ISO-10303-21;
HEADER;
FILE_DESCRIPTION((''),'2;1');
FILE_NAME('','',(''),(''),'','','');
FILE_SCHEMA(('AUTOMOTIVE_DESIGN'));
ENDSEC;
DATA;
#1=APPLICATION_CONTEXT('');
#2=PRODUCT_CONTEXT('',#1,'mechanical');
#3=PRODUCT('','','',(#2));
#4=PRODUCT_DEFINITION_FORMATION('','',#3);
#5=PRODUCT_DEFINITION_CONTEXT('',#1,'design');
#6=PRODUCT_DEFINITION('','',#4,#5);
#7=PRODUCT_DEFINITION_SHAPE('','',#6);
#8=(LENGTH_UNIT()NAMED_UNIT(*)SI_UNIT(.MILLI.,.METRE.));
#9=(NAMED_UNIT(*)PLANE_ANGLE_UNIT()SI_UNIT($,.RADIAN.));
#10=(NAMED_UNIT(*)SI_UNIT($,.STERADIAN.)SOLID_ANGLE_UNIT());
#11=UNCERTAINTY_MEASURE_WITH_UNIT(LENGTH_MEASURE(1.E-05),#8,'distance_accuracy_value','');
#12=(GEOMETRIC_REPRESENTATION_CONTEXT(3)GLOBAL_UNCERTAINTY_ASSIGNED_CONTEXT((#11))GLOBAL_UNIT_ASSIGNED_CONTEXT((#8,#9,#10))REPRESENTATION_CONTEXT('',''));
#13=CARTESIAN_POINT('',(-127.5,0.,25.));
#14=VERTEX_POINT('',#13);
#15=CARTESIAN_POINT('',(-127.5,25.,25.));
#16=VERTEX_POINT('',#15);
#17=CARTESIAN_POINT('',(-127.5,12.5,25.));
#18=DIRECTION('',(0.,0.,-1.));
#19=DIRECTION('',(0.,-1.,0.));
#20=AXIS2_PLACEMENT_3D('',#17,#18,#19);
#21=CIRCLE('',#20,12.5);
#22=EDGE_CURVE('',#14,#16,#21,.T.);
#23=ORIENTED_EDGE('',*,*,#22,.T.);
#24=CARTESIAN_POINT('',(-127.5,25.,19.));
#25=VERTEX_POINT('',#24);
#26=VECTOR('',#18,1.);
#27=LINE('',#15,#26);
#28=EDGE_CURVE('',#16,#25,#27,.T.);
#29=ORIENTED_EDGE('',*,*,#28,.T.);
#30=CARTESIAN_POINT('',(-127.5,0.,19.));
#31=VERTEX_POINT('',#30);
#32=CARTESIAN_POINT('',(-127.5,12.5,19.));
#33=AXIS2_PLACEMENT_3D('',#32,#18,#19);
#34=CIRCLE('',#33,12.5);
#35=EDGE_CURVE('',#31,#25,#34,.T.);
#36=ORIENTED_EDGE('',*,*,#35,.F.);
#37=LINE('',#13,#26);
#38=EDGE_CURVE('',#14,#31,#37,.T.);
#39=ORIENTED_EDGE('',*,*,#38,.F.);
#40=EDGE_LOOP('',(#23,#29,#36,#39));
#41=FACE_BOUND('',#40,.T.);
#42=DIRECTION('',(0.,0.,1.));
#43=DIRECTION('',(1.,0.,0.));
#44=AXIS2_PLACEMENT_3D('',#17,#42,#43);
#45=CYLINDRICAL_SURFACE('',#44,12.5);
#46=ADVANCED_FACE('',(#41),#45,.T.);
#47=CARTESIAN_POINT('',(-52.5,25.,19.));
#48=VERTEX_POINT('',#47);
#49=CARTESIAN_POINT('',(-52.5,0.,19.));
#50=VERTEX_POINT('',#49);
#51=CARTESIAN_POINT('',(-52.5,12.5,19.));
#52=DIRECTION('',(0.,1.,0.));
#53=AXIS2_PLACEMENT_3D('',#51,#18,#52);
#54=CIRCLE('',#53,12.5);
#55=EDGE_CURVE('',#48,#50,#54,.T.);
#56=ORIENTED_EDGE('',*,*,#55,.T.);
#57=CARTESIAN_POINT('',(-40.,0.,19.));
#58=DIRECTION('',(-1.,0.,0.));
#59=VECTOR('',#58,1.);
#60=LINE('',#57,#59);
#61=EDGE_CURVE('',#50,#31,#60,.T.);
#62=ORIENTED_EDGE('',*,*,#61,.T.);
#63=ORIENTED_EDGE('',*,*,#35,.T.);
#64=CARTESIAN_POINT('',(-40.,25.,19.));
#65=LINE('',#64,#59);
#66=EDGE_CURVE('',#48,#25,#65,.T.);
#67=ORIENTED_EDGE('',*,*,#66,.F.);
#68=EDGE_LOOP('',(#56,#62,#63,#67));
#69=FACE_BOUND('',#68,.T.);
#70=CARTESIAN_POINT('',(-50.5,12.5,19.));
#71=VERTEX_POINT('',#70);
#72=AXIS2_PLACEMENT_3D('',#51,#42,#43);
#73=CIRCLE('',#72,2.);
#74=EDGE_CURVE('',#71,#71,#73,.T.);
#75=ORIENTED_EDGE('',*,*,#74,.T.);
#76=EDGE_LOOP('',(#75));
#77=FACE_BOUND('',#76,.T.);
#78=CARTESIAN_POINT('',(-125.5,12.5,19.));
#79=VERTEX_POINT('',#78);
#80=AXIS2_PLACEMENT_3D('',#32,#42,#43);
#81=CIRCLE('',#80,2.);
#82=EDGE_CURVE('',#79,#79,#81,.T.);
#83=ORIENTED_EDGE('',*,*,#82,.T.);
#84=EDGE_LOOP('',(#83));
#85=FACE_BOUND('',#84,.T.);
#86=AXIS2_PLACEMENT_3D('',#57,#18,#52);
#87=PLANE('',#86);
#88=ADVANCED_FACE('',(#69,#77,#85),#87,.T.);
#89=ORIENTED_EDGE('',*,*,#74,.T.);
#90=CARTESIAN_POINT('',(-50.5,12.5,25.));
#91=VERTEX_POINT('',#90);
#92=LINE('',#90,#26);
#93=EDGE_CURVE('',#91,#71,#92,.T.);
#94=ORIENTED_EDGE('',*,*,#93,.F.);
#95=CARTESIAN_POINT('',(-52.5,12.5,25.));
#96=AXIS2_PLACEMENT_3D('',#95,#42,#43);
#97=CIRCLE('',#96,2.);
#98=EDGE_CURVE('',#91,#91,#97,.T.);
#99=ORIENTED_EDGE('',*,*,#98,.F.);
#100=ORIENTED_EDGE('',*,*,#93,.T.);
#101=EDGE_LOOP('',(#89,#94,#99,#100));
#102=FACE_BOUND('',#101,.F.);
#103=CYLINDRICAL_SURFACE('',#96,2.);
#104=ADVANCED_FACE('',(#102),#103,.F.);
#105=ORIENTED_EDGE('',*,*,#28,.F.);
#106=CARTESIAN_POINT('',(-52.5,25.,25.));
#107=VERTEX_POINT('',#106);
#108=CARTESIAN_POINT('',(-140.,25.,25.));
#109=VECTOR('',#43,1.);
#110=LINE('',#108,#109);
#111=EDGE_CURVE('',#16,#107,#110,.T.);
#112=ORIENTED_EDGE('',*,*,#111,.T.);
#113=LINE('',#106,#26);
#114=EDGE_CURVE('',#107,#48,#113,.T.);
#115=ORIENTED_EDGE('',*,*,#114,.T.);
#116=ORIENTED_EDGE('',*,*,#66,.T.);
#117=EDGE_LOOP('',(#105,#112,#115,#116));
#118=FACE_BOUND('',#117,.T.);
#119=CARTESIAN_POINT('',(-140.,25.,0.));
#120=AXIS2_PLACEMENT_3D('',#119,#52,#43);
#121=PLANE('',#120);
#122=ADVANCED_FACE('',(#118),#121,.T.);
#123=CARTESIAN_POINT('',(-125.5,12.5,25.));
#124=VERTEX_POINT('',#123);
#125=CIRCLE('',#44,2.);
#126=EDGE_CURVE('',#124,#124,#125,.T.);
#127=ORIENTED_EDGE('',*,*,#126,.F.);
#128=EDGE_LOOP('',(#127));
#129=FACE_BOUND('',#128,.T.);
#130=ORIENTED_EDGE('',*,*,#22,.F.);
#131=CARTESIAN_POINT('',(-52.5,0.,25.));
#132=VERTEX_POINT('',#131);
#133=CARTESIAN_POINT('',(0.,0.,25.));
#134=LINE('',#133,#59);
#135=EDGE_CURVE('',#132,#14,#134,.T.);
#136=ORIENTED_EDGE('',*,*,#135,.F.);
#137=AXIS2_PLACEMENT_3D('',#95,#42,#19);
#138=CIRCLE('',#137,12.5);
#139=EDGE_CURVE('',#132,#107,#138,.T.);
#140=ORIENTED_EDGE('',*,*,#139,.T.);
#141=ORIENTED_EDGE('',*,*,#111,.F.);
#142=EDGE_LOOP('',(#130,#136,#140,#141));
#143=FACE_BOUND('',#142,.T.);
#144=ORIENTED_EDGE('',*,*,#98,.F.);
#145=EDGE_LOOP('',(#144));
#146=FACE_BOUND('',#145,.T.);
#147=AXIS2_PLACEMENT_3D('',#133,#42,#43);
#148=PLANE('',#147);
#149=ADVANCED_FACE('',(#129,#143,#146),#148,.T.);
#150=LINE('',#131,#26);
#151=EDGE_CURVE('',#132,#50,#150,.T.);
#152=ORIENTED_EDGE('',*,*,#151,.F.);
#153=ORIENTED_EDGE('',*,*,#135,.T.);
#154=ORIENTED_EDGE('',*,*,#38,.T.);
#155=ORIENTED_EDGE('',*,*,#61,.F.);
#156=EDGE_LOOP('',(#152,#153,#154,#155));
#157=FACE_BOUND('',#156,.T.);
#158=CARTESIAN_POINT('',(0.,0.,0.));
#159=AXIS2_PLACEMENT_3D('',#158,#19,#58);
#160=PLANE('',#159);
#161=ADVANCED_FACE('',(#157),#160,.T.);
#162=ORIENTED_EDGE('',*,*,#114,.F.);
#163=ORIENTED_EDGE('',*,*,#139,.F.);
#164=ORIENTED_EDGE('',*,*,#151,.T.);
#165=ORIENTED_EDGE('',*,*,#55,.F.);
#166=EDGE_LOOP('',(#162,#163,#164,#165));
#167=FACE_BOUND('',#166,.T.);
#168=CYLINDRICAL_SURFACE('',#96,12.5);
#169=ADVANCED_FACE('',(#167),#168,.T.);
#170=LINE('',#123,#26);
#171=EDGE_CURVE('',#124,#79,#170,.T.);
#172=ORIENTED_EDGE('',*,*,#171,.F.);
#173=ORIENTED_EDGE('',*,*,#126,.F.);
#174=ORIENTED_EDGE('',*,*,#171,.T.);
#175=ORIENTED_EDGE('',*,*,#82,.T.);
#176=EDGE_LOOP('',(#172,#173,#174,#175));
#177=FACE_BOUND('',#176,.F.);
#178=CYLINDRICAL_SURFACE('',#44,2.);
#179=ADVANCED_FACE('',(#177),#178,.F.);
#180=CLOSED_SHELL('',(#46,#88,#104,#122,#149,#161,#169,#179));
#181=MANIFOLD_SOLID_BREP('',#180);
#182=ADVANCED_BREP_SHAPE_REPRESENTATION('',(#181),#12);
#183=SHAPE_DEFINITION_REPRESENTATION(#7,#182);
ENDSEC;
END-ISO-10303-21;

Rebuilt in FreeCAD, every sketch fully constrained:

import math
import FreeCAD as App
import Part
import Sketcher

V = App.Vector
Q = App.Units.Quantity


def add_polygon(sketch, points):
    """Adds a closed chain of lines whose ends are joined by coincident constraints."""
    first, n = sketch.GeometryCount, len(points)
    for a, b in zip(points, points[1:] + points[:1]):
        sketch.addGeometry(Part.LineSegment(App.Vector(*a, 0), App.Vector(*b, 0)), False)
    for i in range(n):
        sketch.addConstraint(Sketcher.Constraint("Coincident", first + i, 2, first + (i + 1) % n, 1))

doc = App.newDocument("Part")
params = doc.addObject("Spreadsheet::Sheet", "Params")
for row, (alias, value) in enumerate([
    ("sketch1_width", "140 mm"),
    ("sketch1_height", "25 mm"),
    ("pad1_length", "25 mm"),
    ("sketch2_width", "40 mm"),
    ("sketch2_height", "25 mm"),
    ("pocket1_length", "100 mm"),
    ("sketch3_height", "19 mm"),
    ("sketch3_width", "25 mm"),
    ("pocket2_length", "100 mm"),
    ("sketch4_diameter", "4 mm"),
    ("sketch4_radius", "12.5 mm"),
    ("pocket3_length", "100 mm"),
], start=1):
    params.set(f"A{row}", alias)
    params.set(f"B{row}", "=" + value)
    params.setAlias(f"B{row}", alias)

body = doc.addObject("PartDesign::Body", "Body")

# Sketch on XY plane
sketch1 = doc.addObject("Sketcher::SketchObject", "Sketch")
body.addObject(sketch1)
sketch1.AttachmentSupport = (doc.XY_Plane, [""])
sketch1.MapMode = "FlatFace"
add_polygon(sketch1, [(-140, 0), (0, 0), (0, 25), (-140, 25)])  # lines 0-3
sketch1.addConstraint(Sketcher.Constraint("Horizontal", 0))
sketch1.addConstraint(Sketcher.Constraint("Vertical", 1))
sketch1.addConstraint(Sketcher.Constraint("Horizontal", 2))
sketch1.addConstraint(Sketcher.Constraint("Vertical", 3))
sketch1.addConstraint(Sketcher.Constraint("Coincident", 0, 2, -1, 1))
sketch1.addConstraint(Sketcher.Constraint("DistanceX", 0, 1, 0, 2, Q("140 mm")))
sketch1.addConstraint(Sketcher.Constraint("DistanceY", 1, 1, 1, 2, Q("25 mm")))
sketch1.setExpression("Constraints[9]", "Params.sketch1_width")
sketch1.setExpression("Constraints[10]", "Params.sketch1_height")
pad1 = doc.addObject("PartDesign::Pad", "Pad")
body.addObject(pad1)
pad1.Profile = sketch1
pad1.setExpression("Length", "Params.pad1_length")

# Sketch on XY plane
sketch2 = doc.addObject("Sketcher::SketchObject", "Sketch001")
body.addObject(sketch2)
sketch2.AttachmentSupport = (doc.XY_Plane, [""])
sketch2.MapMode = "FlatFace"
sketch2.AttachmentOffset = App.Placement(V(0, 0, 25), App.Rotation())
add_polygon(sketch2, [(0, 0), (0, 25), (-40, 25), (-40, 0)])  # lines 0-3
sketch2.addConstraint(Sketcher.Constraint("Vertical", 0))
sketch2.addConstraint(Sketcher.Constraint("Horizontal", 1))
sketch2.addConstraint(Sketcher.Constraint("Vertical", 2))
sketch2.addConstraint(Sketcher.Constraint("Horizontal", 3))
sketch2.addConstraint(Sketcher.Constraint("Coincident", 3, 2, -1, 1))
sketch2.addConstraint(Sketcher.Constraint("DistanceX", 1, 2, 1, 1, Q("40 mm")))
sketch2.addConstraint(Sketcher.Constraint("DistanceY", 0, 1, 0, 2, Q("25 mm")))
sketch2.setExpression("Constraints[9]", "Params.sketch2_width")
sketch2.setExpression("Constraints[10]", "Params.sketch2_height")
pocket1 = doc.addObject("PartDesign::Pocket", "Pocket")
body.addObject(pocket1)
pocket1.Profile = sketch2
pocket1.setExpression("Length", "Params.pocket1_length")

# Sketch on YZ plane
sketch3 = doc.addObject("Sketcher::SketchObject", "Sketch002")
body.addObject(sketch3)
sketch3.AttachmentSupport = (doc.YZ_Plane, [""])
sketch3.MapMode = "FlatFace"
sketch3.AttachmentOffset = App.Placement(V(0, 0, -40), App.Rotation())
add_polygon(sketch3, [(0, 0), (25, 0), (25, 19), (0, 19)])  # lines 0-3
sketch3.addConstraint(Sketcher.Constraint("Horizontal", 0))
sketch3.addConstraint(Sketcher.Constraint("Vertical", 1))
sketch3.addConstraint(Sketcher.Constraint("Horizontal", 2))
sketch3.addConstraint(Sketcher.Constraint("Vertical", 3))
sketch3.addConstraint(Sketcher.Constraint("Coincident", 3, 2, -1, 1))
sketch3.addConstraint(Sketcher.Constraint("DistanceY", 1, 1, 1, 2, Q("19 mm")))
sketch3.addConstraint(Sketcher.Constraint("DistanceX", 0, 1, 0, 2, Q("25 mm")))
sketch3.setExpression("Constraints[9]", "Params.sketch3_height")
sketch3.setExpression("Constraints[10]", "Params.sketch3_width")
pocket2 = doc.addObject("PartDesign::Pocket", "Pocket001")
body.addObject(pocket2)
pocket2.Profile = sketch3
pocket2.setExpression("Length", "Params.pocket2_length")

# Sketch on XY plane
sketch4 = doc.addObject("Sketcher::SketchObject", "Sketch003")
body.addObject(sketch4)
sketch4.AttachmentSupport = (doc.XY_Plane, [""])
sketch4.MapMode = "FlatFace"
sketch4.AttachmentOffset = App.Placement(V(0, 0, 25), App.Rotation())
sketch4.addGeometry(Part.LineSegment(V(-40, 0, 0), V(-40, 12.5, 0)), False)
sketch4.addGeometry(Part.ArcOfCircle(Part.Circle(V(-52.5, 12.5, 0), V(0, 0, 1), 12.5), math.radians(-90), math.radians(0)), False)
sketch4.addGeometry(Part.LineSegment(V(-52.5, 0, 0), V(-40, 0, 0)), False)
sketch4.addGeometry(Part.ArcOfCircle(Part.Circle(V(-52.5, 12.5, 0), V(0, 0, 1), 12.5), math.radians(0), math.radians(90)), False)
sketch4.addGeometry(Part.LineSegment(V(-40, 12.5, 0), V(-40, 25, 0)), False)
sketch4.addGeometry(Part.LineSegment(V(-40, 25, 0), V(-52.5, 25, 0)), False)
sketch4.addGeometry(Part.ArcOfCircle(Part.Circle(V(-127.5, 12.5, 0), V(0, 0, 1), 12.5), math.radians(90), math.radians(180)), False)
sketch4.addGeometry(Part.LineSegment(V(-127.5, 25, 0), V(-140, 25, 0)), False)
sketch4.addGeometry(Part.LineSegment(V(-140, 25, 0), V(-140, 12.5, 0)), False)
sketch4.addGeometry(Part.LineSegment(V(-140, 0, 0), V(-127.5, 0, 0)), False)
sketch4.addGeometry(Part.ArcOfCircle(Part.Circle(V(-127.5, 12.5, 0), V(0, 0, 1), 12.5), math.radians(180), math.radians(270)), False)
sketch4.addGeometry(Part.LineSegment(V(-140, 12.5, 0), V(-140, 0, 0)), False)
sketch4.addGeometry(Part.Circle(V(-127.5, 12.5, 0), V(0, 0, 1), 2), False)
sketch4.addGeometry(Part.Circle(V(-52.5, 12.5, 0), V(0, 0, 1), 2), False)
sketch4.addConstraint(Sketcher.Constraint("Tangent", 0, 2, 1, 2))
sketch4.addConstraint(Sketcher.Constraint("Tangent", 1, 1, 2, 1))
sketch4.addConstraint(Sketcher.Constraint("Coincident", 2, 2, 0, 1))
sketch4.addConstraint(Sketcher.Constraint("Tangent", 3, 1, 4, 1))
sketch4.addConstraint(Sketcher.Constraint("Coincident", 4, 2, 5, 1))
sketch4.addConstraint(Sketcher.Constraint("Tangent", 5, 2, 3, 2))
sketch4.addConstraint(Sketcher.Constraint("Tangent", 6, 1, 7, 1))
sketch4.addConstraint(Sketcher.Constraint("Coincident", 7, 2, 8, 1))
sketch4.addConstraint(Sketcher.Constraint("Tangent", 8, 2, 6, 2))
sketch4.addConstraint(Sketcher.Constraint("Tangent", 9, 2, 10, 2))
sketch4.addConstraint(Sketcher.Constraint("Tangent", 10, 1, 11, 1))
sketch4.addConstraint(Sketcher.Constraint("Coincident", 11, 2, 9, 1))
sketch4.addConstraint(Sketcher.Constraint("Vertical", 0))
sketch4.addConstraint(Sketcher.Constraint("Horizontal", 2))
sketch4.addConstraint(Sketcher.Constraint("Vertical", 4))
sketch4.addConstraint(Sketcher.Constraint("Horizontal", 5))
sketch4.addConstraint(Sketcher.Constraint("Horizontal", 7))
sketch4.addConstraint(Sketcher.Constraint("Vertical", 8))
sketch4.addConstraint(Sketcher.Constraint("Horizontal", 9))
sketch4.addConstraint(Sketcher.Constraint("Vertical", 11))
sketch4.addConstraint(Sketcher.Constraint("Coincident", 3, 3, 1, 3))
sketch4.addConstraint(Sketcher.Constraint("Coincident", 10, 3, 6, 3))
sketch4.addConstraint(Sketcher.Constraint("Coincident", 12, 3, 6, 3))
sketch4.addConstraint(Sketcher.Constraint("Coincident", 13, 3, 1, 3))
sketch4.addConstraint(Sketcher.Constraint("Equal", 1, 3))
sketch4.addConstraint(Sketcher.Constraint("Equal", 3, 6))
sketch4.addConstraint(Sketcher.Constraint("Equal", 6, 10))
sketch4.addConstraint(Sketcher.Constraint("Equal", 12, 13))
sketch4.addConstraint(Sketcher.Constraint("PointOnObject", 1, 1, -1))
sketch4.addConstraint(Sketcher.Constraint("PointOnObject", 9, 2, -1))
sketch4.addConstraint(Sketcher.Constraint("Diameter", 12, Q("4 mm")))
sketch4.addConstraint(Sketcher.Constraint("Radius", 1, Q("12.5 mm")))
sketch4.addConstraint(Sketcher.Constraint("DistanceX", 0, 2, -1, 1, Q("40 mm")))
sketch4.addConstraint(Sketcher.Constraint("DistanceX", 7, 2, -1, 1, Q("140 mm")))
sketch4.setExpression("Constraints[30]", "Params.sketch4_diameter")
sketch4.setExpression("Constraints[31]", "Params.sketch4_radius")
pocket3 = doc.addObject("PartDesign::Pocket", "Pocket002")
body.addObject(pocket3)
pocket3.Profile = sketch4
pocket3.setExpression("Length", "Params.pocket3_length")

doc.recompute()
